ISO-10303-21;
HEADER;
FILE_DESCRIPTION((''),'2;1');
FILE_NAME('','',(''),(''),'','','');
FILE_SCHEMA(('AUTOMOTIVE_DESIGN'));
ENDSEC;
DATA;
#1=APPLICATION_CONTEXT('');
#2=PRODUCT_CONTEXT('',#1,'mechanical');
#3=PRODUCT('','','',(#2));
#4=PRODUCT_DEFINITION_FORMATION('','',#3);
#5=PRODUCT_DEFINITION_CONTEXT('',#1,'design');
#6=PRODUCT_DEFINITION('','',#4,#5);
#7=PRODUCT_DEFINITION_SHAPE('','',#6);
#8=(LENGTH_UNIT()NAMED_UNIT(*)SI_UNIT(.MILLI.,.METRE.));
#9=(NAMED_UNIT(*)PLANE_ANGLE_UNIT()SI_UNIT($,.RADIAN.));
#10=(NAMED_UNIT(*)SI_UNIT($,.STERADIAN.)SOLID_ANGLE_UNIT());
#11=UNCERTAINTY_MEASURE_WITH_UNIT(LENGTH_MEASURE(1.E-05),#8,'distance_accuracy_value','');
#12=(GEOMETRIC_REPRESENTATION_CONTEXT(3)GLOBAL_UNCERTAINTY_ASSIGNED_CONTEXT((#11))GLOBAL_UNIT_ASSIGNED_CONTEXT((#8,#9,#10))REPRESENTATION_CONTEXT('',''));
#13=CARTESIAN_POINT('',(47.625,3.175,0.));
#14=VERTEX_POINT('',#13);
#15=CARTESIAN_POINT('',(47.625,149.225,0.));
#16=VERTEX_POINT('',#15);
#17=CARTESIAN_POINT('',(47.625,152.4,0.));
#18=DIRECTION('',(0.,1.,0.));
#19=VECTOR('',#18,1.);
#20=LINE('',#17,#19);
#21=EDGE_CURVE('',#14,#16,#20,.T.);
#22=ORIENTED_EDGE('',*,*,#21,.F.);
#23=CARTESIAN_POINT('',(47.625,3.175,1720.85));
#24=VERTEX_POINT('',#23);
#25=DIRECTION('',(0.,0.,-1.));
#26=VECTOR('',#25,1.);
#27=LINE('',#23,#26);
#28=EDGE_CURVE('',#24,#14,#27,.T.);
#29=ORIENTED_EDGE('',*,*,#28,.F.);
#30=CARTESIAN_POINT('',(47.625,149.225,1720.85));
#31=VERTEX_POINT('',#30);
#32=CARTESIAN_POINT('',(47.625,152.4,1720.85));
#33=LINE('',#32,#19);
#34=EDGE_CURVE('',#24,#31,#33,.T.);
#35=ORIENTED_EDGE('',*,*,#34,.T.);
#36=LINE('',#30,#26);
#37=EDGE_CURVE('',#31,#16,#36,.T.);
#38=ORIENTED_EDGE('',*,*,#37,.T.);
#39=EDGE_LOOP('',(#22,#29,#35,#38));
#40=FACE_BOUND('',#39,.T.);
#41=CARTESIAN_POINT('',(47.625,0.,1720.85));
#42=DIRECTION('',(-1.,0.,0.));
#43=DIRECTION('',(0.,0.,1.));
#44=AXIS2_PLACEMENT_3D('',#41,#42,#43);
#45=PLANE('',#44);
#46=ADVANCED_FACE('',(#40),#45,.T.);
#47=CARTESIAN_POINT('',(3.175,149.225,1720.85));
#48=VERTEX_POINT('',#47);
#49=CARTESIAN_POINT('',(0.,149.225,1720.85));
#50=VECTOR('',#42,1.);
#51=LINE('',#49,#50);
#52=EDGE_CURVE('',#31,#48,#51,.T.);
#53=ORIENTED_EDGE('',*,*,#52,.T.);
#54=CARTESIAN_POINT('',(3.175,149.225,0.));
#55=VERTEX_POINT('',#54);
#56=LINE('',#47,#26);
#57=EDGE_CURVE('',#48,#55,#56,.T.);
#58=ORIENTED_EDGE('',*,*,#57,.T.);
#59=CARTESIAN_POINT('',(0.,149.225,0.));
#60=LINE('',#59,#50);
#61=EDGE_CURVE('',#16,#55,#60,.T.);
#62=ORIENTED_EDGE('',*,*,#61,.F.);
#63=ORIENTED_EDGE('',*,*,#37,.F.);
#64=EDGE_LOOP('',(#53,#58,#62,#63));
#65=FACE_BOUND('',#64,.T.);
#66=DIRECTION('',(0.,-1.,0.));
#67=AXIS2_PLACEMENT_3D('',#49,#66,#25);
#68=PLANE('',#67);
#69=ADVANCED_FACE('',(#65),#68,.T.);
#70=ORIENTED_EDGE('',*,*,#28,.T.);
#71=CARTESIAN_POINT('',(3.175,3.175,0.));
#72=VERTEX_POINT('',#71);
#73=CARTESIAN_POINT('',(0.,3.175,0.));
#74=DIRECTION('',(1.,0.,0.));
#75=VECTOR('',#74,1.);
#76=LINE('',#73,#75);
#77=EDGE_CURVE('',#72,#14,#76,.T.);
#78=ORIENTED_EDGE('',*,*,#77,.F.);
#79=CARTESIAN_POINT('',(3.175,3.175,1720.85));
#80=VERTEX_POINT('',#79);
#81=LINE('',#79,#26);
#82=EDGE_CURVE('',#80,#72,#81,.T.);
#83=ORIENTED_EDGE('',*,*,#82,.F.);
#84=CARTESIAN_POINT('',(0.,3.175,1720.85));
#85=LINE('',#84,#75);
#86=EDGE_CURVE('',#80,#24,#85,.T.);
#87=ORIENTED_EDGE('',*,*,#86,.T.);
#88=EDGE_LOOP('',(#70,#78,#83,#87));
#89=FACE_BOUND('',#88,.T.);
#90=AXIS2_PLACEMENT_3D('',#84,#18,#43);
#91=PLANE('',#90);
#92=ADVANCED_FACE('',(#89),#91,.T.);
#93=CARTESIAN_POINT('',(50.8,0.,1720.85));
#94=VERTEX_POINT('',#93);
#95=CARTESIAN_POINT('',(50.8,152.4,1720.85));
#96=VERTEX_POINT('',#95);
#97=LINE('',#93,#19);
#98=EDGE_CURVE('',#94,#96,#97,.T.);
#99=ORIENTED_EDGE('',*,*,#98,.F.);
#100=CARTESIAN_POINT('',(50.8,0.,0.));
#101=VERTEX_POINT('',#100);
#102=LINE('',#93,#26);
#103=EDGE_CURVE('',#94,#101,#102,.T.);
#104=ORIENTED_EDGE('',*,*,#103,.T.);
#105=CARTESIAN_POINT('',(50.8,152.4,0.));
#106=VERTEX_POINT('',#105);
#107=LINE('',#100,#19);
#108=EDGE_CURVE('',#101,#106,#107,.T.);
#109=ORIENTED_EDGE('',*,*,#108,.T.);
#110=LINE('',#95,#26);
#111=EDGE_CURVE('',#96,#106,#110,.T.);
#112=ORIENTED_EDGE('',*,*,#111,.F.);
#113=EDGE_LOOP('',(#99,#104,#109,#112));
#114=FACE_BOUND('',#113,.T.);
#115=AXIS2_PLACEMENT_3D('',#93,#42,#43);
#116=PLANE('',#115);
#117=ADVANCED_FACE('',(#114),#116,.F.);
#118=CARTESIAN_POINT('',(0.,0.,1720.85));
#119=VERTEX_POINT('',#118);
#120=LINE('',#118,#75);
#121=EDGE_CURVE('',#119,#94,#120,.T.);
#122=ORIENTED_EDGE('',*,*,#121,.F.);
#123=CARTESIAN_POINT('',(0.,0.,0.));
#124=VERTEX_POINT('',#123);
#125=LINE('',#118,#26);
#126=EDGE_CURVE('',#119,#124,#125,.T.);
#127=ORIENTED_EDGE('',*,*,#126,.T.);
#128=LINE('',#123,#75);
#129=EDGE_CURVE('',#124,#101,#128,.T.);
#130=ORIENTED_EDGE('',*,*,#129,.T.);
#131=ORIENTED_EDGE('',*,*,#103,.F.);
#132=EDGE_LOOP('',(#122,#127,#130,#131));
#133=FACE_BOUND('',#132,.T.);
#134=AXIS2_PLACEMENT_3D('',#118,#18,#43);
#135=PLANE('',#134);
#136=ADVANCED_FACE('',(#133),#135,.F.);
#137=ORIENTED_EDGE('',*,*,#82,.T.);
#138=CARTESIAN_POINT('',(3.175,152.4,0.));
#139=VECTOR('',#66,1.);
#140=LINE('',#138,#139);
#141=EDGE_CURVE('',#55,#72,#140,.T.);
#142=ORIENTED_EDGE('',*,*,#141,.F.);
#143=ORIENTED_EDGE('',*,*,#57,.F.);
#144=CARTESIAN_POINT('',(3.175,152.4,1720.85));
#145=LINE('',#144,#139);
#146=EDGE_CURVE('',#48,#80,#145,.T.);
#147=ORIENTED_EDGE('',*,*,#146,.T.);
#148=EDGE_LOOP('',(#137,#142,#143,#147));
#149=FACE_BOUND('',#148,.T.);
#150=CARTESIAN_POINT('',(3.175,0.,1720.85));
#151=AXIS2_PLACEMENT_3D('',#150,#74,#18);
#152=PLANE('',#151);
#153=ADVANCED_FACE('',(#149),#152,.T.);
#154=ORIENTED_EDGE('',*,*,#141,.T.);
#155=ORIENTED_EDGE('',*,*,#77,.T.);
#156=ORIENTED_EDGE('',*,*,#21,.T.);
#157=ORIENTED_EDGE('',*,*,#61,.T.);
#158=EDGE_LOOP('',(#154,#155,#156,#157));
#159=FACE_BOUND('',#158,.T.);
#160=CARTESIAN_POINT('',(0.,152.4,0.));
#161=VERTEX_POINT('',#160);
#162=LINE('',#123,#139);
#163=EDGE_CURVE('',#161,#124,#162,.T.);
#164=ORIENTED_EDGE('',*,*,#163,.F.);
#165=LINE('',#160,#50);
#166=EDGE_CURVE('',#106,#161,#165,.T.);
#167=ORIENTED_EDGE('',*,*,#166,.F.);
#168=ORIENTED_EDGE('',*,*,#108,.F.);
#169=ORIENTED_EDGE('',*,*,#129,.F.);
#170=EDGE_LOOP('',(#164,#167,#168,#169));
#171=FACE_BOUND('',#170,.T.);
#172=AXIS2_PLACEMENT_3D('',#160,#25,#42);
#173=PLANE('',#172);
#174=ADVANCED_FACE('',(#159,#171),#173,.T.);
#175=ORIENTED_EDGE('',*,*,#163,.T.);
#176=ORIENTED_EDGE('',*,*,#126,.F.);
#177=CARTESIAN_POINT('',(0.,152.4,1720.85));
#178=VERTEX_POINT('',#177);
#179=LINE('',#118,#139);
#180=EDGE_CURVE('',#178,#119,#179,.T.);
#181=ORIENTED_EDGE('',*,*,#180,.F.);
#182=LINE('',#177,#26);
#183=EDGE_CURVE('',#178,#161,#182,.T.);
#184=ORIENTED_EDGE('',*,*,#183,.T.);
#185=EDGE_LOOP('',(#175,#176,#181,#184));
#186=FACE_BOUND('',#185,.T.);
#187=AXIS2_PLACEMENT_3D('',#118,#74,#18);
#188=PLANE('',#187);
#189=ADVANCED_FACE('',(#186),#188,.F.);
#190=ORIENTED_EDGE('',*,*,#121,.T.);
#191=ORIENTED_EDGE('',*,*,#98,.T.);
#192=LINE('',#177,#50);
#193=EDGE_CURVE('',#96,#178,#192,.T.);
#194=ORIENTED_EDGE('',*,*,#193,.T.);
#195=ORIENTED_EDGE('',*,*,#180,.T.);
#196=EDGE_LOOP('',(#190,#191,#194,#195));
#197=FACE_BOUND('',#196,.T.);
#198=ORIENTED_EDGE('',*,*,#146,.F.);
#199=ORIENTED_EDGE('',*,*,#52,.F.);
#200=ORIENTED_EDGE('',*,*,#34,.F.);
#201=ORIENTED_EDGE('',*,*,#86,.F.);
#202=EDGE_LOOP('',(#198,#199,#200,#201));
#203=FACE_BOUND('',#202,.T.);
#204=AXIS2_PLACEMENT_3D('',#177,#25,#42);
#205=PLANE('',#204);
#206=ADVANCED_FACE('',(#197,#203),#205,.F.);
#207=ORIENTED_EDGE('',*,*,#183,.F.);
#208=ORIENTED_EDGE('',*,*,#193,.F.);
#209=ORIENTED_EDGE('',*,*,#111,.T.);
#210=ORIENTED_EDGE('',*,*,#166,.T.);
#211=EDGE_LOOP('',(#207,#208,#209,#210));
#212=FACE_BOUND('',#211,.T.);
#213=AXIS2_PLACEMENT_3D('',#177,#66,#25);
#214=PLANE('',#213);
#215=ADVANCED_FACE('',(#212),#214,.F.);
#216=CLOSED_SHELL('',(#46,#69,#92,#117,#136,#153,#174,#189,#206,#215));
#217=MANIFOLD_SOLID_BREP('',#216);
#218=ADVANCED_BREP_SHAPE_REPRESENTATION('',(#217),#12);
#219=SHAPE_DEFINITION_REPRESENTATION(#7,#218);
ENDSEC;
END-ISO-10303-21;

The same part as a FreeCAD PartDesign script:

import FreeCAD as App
import Part
import Sketcher
from FreeCAD import Vector
Q = App.Units.Quantity


def faces_at(feature, points):
    """Names of the faces that lie closest to the given points."""
    faces = feature.Shape.Faces
    near = lambda p: min(range(len(faces)), key=lambda i: faces[i].distToShape(Part.Vertex(*p))[0])
    return sorted({f"Face{near(p) + 1}" for p in points})


def add_polygon(sketch, points):
    """Adds a closed chain of lines whose ends are joined by coincident constraints."""
    first, n = sketch.GeometryCount, len(points)
    for a, b in zip(points, points[1:] + points[:1]):
        sketch.addGeometry(Part.LineSegment(App.Vector(*a, 0), App.Vector(*b, 0)), False)
    for i in range(n):
        sketch.addConstraint(Sketcher.Constraint("Coincident", first + i, 2, first + (i + 1) % n, 1))

doc = App.newDocument("Part")
body = doc.addObject("PartDesign::Body", "Body")

# Sketch on XY plane
sketch1 = body.newObject("Sketcher::SketchObject", "Sketch")
sketch1.AttachmentSupport = (doc.getObject("XY_Plane"), [""])
sketch1.MapMode = "FlatFace"
add_polygon(sketch1, [(0, 152), (0, 0), (51, 0), (51, 152)])  # lines 0-3
sketch1.addConstraint([
    Sketcher.Constraint("Vertical", 0),
    Sketcher.Constraint("Horizontal", 1),
    Sketcher.Constraint("Vertical", 2),
    Sketcher.Constraint("Horizontal", 3),
    Sketcher.Constraint("Coincident", 0, 2, -1, 1),
    Sketcher.Constraint("DistanceX", 1, 1, 1, 2, Q("2 in")),
    Sketcher.Constraint("DistanceY", 0, 2, 0, 1, Q("6 in")),
])
pad1 = body.newObject("PartDesign::Pad", "Pad")
pad1.Profile = sketch1
pad1.Length = Q("67.75 in")
doc.recompute()

thickness = body.newObject("PartDesign::Thickness", "Thickness")
thickness.Base = (pad1, faces_at(pad1, [(25.4, 76.2, 1720.85), (25.4, 76.2, 0)]))
thickness.Value = Q("0.125 in")
thickness.Reversed = True
thickness.Join = "Intersection"

doc.recompute()
